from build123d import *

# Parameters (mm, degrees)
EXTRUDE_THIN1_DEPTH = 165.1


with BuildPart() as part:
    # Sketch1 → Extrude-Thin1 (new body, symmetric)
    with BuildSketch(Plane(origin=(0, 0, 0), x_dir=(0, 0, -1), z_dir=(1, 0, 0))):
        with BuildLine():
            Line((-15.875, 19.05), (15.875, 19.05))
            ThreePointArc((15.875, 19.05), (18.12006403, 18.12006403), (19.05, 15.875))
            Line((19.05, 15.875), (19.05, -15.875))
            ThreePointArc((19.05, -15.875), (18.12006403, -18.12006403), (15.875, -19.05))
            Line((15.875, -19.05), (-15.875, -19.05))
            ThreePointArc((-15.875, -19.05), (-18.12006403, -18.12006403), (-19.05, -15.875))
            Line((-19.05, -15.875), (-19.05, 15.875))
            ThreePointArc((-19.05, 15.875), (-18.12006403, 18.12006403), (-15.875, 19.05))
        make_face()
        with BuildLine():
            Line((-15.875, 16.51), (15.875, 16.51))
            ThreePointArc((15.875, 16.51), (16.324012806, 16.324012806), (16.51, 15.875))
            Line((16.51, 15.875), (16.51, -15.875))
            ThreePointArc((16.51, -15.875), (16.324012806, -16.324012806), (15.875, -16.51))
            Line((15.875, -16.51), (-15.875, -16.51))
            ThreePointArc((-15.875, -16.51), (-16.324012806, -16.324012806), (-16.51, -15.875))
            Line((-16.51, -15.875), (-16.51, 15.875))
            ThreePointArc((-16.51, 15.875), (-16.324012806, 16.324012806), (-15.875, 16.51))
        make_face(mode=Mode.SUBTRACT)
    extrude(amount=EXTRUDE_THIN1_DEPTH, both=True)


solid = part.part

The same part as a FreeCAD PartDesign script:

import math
import FreeCAD as App
import Part
import Sketcher

V = App.Vector
Q = App.Units.Quantity

doc = App.newDocument("Part")
body = doc.addObject("PartDesign::Body", "Body")

# Sketch on YZ plane
sketch1 = body.newObject("Sketcher::SketchObject", "Sketch")
sketch1.AttachmentSupport = (doc.getObject("YZ_Plane"), [""])
sketch1.MapMode = "FlatFace"
sketch1.addGeometry([
    Part.LineSegment(V(19.05, -15.875, 0), V(19.05, 15.875, 0)),  # 0
    Part.ArcOfCircle(Part.Circle(V(15.875, 15.875, 0), V(0, 0, 1), 3.175), math.radians(0), math.radians(90)),  # 1
    Part.LineSegment(V(15.875, 19.05, 0), V(-15.875, 19.05, 0)),  # 2
    Part.ArcOfCircle(Part.Circle(V(-15.875, 15.875, 0), V(0, 0, 1), 3.175), math.radians(90), math.radians(180)),  # 3
    Part.LineSegment(V(-19.05, 15.875, 0), V(-19.05, -15.875, 0)),  # 4
    Part.ArcOfCircle(Part.Circle(V(-15.875, -15.875, 0), V(0, 0, 1), 3.175), math.radians(-180), math.radians(-90)),  # 5
    Part.LineSegment(V(-15.875, -19.05, 0), V(15.875, -19.05, 0)),  # 6
    Part.ArcOfCircle(Part.Circle(V(15.875, -15.875, 0), V(0, 0, 1), 3.175), math.radians(-90), math.radians(0)),  # 7
    Part.LineSegment(V(16.51, 15.875, 0), V(16.51, -15.875, 0)),  # 8
    Part.ArcOfCircle(Part.Circle(V(15.875, -15.875, 0), V(0, 0, 1), 0.635), math.radians(-90), math.radians(0)),  # 9
    Part.LineSegment(V(15.875, -16.51, 0), V(-15.875, -16.51, 0)),  # 10
    Part.ArcOfCircle(Part.Circle(V(-15.875, -15.875, 0), V(0, 0, 1), 0.635), math.radians(180), math.radians(270)),  # 11
    Part.LineSegment(V(-16.51, -15.875, 0), V(-16.51, 15.875, 0)),  # 12
    Part.ArcOfCircle(Part.Circle(V(-15.875, 15.875, 0), V(0, 0, 1), 0.635), math.radians(90), math.radians(180)),  # 13
    Part.LineSegment(V(-15.875, 16.51, 0), V(15.875, 16.51, 0)),  # 14
    Part.ArcOfCircle(Part.Circle(V(15.875, 15.875, 0), V(0, 0, 1), 0.635), math.radians(0), math.radians(90)),  # 15
], False)
sketch1.addConstraint([
    Sketcher.Constraint("Tangent", 0, 2, 1, 1),
    Sketcher.Constraint("Tangent", 1, 2, 2, 1),
    Sketcher.Constraint("Tangent", 2, 2, 3, 1),
    Sketcher.Constraint("Tangent", 3, 2, 4, 1),
    Sketcher.Constraint("Tangent", 4, 2, 5, 1),
    Sketcher.Constraint("Tangent", 5, 2, 6, 1),
    Sketcher.Constraint("Tangent", 6, 2, 7, 1),
    Sketcher.Constraint("Tangent", 7, 2, 0, 1),
    Sketcher.Constraint("Tangent", 8, 2, 9, 2),
    Sketcher.Constraint("Tangent", 9, 1, 10, 1),
    Sketcher.Constraint("Tangent", 10, 2, 11, 2),
    Sketcher.Constraint("Tangent", 11, 1, 12, 1),
    Sketcher.Constraint("Tangent", 12, 2, 13, 2),
    Sketcher.Constraint("Tangent", 13, 1, 14, 1),
    Sketcher.Constraint("Tangent", 14, 2, 15, 2),
    Sketcher.Constraint("Tangent", 15, 1, 8, 1),
    Sketcher.Constraint("Vertical", 0),
    Sketcher.Constraint("Horizontal", 2),
    Sketcher.Constraint("Vertical", 4),
    Sketcher.Constraint("Horizontal", 6),
    Sketcher.Constraint("Vertical", 8),
    Sketcher.Constraint("Horizontal", 10),
    Sketcher.Constraint("Vertical", 12),
    Sketcher.Constraint("Horizontal", 14),
    Sketcher.Constraint("Coincident", 9, 3, 7, 3),
    Sketcher.Constraint("Coincident", 11, 3, 5, 3),
    Sketcher.Constraint("Coincident", 13, 3, 3, 3),
    Sketcher.Constraint("Equal", 1, 3),
    Sketcher.Constraint("Equal", 3, 5),
    Sketcher.Constraint("Equal", 5, 7),
    Sketcher.Constraint("Equal", 13, 15),
    Sketcher.Constraint("Symmetric", 1, 3, 5, 3, -1, 1),
    Sketcher.Constraint("Equal", 14, 0),
    Sketcher.Constraint("Radius", 1, Q("0.125 in")),
    Sketcher.Constraint("Radius", 9, Q("0.025 in")),
    Sketcher.Constraint("DistanceX", 2, 2, 2, 1, Q("1.25 in")),
])
pad1 = body.newObject("PartDesign::Pad", "Pad")
pad1.Profile = sketch1
pad1.Length = Q("13 in")
pad1.Midplane = True

doc.recompute()
